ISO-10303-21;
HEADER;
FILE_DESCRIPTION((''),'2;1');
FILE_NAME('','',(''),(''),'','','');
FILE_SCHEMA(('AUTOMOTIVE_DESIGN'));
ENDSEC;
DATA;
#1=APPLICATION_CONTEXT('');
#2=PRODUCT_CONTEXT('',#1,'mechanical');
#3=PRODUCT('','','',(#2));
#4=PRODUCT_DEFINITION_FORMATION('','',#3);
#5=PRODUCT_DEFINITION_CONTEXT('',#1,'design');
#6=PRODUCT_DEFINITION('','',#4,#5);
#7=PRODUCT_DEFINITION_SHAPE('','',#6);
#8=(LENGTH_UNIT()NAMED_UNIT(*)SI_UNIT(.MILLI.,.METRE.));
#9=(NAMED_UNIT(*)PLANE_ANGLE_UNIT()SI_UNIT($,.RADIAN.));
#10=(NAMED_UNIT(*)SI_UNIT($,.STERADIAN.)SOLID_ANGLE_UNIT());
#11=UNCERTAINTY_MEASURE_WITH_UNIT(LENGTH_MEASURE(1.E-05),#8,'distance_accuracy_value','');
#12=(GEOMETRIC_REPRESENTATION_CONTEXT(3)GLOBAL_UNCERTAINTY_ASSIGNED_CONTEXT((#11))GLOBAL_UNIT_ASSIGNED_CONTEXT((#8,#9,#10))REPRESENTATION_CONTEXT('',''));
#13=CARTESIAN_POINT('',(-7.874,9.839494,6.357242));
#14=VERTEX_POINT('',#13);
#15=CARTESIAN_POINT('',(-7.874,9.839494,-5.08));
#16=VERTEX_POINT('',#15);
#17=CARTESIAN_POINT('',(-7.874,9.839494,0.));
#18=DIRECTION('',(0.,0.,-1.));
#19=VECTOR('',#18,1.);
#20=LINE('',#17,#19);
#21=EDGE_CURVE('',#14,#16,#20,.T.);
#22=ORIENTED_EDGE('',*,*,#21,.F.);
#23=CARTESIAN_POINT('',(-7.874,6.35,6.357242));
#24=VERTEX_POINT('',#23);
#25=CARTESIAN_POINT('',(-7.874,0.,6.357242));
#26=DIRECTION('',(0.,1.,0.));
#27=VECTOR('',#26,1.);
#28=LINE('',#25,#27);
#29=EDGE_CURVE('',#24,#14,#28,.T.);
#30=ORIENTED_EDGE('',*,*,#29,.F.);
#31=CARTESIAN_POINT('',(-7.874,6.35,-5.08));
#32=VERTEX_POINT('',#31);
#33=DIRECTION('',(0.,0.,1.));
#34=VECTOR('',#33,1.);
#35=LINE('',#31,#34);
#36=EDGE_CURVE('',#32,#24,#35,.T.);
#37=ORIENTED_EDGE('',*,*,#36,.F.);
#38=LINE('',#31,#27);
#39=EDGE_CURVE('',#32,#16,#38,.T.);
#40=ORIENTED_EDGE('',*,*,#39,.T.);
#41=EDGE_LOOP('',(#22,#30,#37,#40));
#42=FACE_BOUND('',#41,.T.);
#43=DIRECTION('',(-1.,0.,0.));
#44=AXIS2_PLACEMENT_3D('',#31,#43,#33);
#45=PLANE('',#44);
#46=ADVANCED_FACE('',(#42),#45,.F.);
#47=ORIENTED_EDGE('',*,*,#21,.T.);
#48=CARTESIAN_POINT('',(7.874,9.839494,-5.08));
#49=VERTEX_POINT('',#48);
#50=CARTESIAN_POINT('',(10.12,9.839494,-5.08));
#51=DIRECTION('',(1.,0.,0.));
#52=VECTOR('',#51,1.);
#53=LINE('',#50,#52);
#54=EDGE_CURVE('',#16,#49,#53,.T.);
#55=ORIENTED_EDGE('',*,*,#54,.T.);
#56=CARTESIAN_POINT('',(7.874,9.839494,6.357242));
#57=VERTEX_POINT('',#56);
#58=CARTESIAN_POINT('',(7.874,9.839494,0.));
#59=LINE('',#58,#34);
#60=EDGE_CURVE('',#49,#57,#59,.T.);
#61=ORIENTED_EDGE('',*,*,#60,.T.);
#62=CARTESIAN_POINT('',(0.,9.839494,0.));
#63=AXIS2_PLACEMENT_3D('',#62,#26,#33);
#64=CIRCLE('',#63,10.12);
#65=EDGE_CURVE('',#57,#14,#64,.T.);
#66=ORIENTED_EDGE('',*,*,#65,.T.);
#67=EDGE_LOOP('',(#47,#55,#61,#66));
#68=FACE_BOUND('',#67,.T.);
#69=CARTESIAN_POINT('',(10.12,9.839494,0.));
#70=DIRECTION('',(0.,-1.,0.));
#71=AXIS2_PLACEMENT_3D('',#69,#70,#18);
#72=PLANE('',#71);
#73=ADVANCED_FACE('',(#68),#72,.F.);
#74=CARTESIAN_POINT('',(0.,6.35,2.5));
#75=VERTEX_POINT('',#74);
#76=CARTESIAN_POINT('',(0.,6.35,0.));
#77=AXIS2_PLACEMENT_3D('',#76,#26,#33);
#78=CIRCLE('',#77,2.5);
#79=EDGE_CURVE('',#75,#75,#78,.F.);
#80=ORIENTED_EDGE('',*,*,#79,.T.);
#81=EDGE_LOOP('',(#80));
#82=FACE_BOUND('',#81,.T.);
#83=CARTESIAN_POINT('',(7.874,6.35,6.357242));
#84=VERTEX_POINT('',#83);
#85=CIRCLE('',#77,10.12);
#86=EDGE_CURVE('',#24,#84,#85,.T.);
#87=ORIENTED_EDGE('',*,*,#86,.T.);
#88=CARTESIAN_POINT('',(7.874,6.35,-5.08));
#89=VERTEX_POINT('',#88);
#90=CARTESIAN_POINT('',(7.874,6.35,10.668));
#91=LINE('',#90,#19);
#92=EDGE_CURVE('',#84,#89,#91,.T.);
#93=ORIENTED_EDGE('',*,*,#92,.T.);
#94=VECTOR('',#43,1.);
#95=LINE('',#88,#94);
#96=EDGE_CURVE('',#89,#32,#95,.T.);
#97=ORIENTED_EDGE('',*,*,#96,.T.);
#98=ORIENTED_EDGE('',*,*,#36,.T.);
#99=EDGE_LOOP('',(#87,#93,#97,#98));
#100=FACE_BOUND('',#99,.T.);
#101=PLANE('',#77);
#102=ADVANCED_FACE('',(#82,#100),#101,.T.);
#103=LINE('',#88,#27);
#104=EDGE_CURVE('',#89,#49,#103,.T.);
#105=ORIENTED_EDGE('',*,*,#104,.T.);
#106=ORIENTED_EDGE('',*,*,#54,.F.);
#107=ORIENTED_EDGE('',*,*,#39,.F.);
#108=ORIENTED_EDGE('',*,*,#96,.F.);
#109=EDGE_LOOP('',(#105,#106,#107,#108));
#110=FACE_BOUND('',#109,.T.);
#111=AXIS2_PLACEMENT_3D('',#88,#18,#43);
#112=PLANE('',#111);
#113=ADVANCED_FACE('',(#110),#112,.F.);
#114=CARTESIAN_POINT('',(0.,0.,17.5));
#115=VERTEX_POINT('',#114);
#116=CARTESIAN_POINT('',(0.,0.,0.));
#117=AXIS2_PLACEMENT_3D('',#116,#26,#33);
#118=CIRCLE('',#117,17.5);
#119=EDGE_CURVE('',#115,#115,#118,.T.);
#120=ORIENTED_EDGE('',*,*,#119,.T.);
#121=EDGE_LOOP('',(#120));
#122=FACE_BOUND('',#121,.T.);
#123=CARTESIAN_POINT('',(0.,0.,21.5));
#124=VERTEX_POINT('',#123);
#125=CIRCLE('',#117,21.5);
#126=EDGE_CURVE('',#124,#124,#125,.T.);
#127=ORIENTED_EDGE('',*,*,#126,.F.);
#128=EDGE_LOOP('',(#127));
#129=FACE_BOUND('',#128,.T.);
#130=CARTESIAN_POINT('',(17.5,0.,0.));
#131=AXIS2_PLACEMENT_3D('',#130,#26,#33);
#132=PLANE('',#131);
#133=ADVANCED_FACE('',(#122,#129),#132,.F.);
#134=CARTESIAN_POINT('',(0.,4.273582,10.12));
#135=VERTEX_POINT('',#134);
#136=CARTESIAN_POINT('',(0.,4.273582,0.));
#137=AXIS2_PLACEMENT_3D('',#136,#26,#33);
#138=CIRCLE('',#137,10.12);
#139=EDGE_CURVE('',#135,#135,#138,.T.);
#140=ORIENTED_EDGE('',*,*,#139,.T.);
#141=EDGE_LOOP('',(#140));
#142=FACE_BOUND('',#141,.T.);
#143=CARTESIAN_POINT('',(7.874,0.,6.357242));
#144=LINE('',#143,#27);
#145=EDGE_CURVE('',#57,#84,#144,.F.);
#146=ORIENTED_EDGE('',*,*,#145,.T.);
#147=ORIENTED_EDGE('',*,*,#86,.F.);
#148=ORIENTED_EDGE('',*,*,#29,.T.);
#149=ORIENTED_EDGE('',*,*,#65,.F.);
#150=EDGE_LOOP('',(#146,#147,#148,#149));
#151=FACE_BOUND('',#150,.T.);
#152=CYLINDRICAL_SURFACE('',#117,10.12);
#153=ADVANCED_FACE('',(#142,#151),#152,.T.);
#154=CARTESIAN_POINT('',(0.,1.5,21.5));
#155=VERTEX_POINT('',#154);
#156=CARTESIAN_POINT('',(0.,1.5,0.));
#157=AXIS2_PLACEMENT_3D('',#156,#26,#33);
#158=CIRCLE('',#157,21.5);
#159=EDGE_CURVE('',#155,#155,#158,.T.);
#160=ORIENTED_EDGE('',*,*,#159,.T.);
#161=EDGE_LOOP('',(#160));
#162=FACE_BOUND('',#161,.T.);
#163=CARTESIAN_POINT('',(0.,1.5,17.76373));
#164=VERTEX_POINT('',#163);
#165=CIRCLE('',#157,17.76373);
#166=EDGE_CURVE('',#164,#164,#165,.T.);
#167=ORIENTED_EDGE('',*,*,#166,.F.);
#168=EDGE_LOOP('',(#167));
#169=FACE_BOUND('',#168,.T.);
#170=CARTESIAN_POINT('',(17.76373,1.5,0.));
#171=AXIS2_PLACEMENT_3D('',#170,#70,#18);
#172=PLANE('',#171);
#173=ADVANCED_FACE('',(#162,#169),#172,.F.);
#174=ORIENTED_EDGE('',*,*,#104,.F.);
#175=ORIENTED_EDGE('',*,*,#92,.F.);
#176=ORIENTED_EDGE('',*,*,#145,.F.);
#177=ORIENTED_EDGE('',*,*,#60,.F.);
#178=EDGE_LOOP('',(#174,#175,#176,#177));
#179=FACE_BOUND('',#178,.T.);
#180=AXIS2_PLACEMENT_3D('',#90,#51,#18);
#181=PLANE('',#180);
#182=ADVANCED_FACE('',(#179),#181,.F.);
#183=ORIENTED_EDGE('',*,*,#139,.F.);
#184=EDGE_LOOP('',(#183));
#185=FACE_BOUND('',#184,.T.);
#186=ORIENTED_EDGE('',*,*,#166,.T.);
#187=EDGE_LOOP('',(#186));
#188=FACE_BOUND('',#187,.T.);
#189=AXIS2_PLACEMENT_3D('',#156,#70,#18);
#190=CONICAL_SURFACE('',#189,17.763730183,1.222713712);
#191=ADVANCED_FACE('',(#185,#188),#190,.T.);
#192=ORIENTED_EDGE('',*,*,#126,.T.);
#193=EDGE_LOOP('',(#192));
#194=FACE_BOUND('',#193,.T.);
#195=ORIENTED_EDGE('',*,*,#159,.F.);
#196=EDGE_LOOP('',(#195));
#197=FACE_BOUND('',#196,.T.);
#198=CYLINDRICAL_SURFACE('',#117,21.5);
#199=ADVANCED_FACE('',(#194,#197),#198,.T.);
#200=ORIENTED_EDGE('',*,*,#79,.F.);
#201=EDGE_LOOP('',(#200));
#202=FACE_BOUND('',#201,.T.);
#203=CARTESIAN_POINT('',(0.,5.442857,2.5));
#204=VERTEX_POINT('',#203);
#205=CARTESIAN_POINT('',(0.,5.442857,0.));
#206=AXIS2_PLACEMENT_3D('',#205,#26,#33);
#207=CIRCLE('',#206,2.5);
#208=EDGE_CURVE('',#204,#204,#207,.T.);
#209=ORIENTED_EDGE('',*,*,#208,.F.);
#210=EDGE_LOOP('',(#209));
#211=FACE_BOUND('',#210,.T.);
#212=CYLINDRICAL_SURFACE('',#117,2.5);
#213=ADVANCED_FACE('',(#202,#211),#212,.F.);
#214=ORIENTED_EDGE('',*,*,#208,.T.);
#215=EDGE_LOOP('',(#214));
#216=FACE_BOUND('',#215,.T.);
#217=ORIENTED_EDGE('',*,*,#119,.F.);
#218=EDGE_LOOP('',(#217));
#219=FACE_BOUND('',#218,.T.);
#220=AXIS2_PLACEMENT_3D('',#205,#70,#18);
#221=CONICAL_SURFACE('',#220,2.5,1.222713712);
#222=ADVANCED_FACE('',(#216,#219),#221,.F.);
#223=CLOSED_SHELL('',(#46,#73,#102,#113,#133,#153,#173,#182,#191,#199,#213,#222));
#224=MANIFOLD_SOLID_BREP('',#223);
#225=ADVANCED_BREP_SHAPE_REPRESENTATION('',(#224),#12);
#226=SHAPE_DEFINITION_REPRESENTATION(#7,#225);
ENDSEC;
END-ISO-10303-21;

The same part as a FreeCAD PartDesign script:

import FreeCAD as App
import Part
import Sketcher

V = App.Vector
Q = App.Units.Quantity


def add_polygon(sketch, points):
    """Adds a closed chain of lines whose ends are joined by coincident constraints."""
    first, n = sketch.GeometryCount, len(points)
    for a, b in zip(points, points[1:] + points[:1]):
        sketch.addGeometry(Part.LineSegment(App.Vector(*a, 0), App.Vector(*b, 0)), False)
    for i in range(n):
        sketch.addConstraint(Sketcher.Constraint("Coincident", first + i, 2, first + (i + 1) % n, 1))

doc = App.newDocument("Part")
body = doc.addObject("PartDesign::Body", "Body")

# Sketch on XY plane
sketch1 = body.newObject("Sketcher::SketchObject", "Sketch")
sketch1.AttachmentSupport = (doc.getObject("XY_Plane"), [""])
sketch1.MapMode = "FlatFace"
add_polygon(sketch1, [(2.5, 5.4), (17.5, 0), (21.5, 0), (21.5, 1.5), (17.8, 1.5), (10.1, 4.3), (10.1, 9.8), (2.5, 9.8)])  # lines 0-7
sketch1.addConstraint([
    Sketcher.Constraint("Horizontal", 1),
    Sketcher.Constraint("Vertical", 2),
    Sketcher.Constraint("Horizontal", 3),
    Sketcher.Constraint("Vertical", 5),
    Sketcher.Constraint("Horizontal", 6),
    Sketcher.Constraint("Vertical", 7),
    Sketcher.Constraint("PointOnObject", 0, 2, -1),
    Sketcher.Constraint("Parallel", 0, 4),
    Sketcher.Constraint("DistanceX", 6, 2, 6, 1, Q("0.3 in")),
    Sketcher.Constraint("DistanceX", 1, 1, 1, 2, Q("4 mm")),
    Sketcher.Constraint("DistanceY", 2, 1, 2, 2, Q("1.5 mm")),
    Sketcher.Constraint("DistanceX", 3, 2, 3, 1, Q("3.73627 mm")),
    Sketcher.Constraint("DistanceX", -1, 1, 0, 2, Q("17.5 mm")),
    Sketcher.Constraint("DistanceX", -1, 1, 4, 2, Q("10.12 mm")),
    Sketcher.Constraint("Distance", 4, Q("8.131382 mm")),
    Sketcher.Constraint("DistanceY", 5, 1, 5, 2, Q("5.565912 mm")),
])
revolution = body.newObject("PartDesign::Revolution", "Revolution")
revolution.Profile = sketch1
revolution.ReferenceAxis = (sketch1, ["V_Axis"])
revolution.Angle = 360

# Sketch on XZ plane
sketch2 = body.newObject("Sketcher::SketchObject", "Sketch001")
sketch2.AttachmentSupport = (doc.getObject("XZ_Plane"), [""])
sketch2.MapMode = "FlatFace"
sketch2.AttachmentOffset = App.Placement(V(0, 0, -0.5 * 25.4), App.Rotation())
add_polygon(sketch2, [(-8, -5), (-8, 11), (8, 11), (8, -5)])  # lines 0-3
sketch2.addConstraint([
    Sketcher.Constraint("Vertical", 0),
    Sketcher.Constraint("Horizontal", 1),
    Sketcher.Constraint("Vertical", 2),
    Sketcher.Constraint("Horizontal", 3),
    Sketcher.Constraint("Equal", 3, 0),
    Sketcher.Constraint("DistanceX", 1, 1, 1, 2, Q("0.62 in")),
    Sketcher.Constraint("DistanceY", 2, 2, -1, 1, Q("0.2 in")),
    Sketcher.Constraint("DistanceX", 0, 2, -1, 1, Q("0.31 in")),
])
pocket1 = body.newObject("PartDesign::Pocket", "Pocket")
pocket1.Profile = sketch2
pocket1.Length = Q("0.25 in")
pocket1.Reversed = True

doc.recompute()
